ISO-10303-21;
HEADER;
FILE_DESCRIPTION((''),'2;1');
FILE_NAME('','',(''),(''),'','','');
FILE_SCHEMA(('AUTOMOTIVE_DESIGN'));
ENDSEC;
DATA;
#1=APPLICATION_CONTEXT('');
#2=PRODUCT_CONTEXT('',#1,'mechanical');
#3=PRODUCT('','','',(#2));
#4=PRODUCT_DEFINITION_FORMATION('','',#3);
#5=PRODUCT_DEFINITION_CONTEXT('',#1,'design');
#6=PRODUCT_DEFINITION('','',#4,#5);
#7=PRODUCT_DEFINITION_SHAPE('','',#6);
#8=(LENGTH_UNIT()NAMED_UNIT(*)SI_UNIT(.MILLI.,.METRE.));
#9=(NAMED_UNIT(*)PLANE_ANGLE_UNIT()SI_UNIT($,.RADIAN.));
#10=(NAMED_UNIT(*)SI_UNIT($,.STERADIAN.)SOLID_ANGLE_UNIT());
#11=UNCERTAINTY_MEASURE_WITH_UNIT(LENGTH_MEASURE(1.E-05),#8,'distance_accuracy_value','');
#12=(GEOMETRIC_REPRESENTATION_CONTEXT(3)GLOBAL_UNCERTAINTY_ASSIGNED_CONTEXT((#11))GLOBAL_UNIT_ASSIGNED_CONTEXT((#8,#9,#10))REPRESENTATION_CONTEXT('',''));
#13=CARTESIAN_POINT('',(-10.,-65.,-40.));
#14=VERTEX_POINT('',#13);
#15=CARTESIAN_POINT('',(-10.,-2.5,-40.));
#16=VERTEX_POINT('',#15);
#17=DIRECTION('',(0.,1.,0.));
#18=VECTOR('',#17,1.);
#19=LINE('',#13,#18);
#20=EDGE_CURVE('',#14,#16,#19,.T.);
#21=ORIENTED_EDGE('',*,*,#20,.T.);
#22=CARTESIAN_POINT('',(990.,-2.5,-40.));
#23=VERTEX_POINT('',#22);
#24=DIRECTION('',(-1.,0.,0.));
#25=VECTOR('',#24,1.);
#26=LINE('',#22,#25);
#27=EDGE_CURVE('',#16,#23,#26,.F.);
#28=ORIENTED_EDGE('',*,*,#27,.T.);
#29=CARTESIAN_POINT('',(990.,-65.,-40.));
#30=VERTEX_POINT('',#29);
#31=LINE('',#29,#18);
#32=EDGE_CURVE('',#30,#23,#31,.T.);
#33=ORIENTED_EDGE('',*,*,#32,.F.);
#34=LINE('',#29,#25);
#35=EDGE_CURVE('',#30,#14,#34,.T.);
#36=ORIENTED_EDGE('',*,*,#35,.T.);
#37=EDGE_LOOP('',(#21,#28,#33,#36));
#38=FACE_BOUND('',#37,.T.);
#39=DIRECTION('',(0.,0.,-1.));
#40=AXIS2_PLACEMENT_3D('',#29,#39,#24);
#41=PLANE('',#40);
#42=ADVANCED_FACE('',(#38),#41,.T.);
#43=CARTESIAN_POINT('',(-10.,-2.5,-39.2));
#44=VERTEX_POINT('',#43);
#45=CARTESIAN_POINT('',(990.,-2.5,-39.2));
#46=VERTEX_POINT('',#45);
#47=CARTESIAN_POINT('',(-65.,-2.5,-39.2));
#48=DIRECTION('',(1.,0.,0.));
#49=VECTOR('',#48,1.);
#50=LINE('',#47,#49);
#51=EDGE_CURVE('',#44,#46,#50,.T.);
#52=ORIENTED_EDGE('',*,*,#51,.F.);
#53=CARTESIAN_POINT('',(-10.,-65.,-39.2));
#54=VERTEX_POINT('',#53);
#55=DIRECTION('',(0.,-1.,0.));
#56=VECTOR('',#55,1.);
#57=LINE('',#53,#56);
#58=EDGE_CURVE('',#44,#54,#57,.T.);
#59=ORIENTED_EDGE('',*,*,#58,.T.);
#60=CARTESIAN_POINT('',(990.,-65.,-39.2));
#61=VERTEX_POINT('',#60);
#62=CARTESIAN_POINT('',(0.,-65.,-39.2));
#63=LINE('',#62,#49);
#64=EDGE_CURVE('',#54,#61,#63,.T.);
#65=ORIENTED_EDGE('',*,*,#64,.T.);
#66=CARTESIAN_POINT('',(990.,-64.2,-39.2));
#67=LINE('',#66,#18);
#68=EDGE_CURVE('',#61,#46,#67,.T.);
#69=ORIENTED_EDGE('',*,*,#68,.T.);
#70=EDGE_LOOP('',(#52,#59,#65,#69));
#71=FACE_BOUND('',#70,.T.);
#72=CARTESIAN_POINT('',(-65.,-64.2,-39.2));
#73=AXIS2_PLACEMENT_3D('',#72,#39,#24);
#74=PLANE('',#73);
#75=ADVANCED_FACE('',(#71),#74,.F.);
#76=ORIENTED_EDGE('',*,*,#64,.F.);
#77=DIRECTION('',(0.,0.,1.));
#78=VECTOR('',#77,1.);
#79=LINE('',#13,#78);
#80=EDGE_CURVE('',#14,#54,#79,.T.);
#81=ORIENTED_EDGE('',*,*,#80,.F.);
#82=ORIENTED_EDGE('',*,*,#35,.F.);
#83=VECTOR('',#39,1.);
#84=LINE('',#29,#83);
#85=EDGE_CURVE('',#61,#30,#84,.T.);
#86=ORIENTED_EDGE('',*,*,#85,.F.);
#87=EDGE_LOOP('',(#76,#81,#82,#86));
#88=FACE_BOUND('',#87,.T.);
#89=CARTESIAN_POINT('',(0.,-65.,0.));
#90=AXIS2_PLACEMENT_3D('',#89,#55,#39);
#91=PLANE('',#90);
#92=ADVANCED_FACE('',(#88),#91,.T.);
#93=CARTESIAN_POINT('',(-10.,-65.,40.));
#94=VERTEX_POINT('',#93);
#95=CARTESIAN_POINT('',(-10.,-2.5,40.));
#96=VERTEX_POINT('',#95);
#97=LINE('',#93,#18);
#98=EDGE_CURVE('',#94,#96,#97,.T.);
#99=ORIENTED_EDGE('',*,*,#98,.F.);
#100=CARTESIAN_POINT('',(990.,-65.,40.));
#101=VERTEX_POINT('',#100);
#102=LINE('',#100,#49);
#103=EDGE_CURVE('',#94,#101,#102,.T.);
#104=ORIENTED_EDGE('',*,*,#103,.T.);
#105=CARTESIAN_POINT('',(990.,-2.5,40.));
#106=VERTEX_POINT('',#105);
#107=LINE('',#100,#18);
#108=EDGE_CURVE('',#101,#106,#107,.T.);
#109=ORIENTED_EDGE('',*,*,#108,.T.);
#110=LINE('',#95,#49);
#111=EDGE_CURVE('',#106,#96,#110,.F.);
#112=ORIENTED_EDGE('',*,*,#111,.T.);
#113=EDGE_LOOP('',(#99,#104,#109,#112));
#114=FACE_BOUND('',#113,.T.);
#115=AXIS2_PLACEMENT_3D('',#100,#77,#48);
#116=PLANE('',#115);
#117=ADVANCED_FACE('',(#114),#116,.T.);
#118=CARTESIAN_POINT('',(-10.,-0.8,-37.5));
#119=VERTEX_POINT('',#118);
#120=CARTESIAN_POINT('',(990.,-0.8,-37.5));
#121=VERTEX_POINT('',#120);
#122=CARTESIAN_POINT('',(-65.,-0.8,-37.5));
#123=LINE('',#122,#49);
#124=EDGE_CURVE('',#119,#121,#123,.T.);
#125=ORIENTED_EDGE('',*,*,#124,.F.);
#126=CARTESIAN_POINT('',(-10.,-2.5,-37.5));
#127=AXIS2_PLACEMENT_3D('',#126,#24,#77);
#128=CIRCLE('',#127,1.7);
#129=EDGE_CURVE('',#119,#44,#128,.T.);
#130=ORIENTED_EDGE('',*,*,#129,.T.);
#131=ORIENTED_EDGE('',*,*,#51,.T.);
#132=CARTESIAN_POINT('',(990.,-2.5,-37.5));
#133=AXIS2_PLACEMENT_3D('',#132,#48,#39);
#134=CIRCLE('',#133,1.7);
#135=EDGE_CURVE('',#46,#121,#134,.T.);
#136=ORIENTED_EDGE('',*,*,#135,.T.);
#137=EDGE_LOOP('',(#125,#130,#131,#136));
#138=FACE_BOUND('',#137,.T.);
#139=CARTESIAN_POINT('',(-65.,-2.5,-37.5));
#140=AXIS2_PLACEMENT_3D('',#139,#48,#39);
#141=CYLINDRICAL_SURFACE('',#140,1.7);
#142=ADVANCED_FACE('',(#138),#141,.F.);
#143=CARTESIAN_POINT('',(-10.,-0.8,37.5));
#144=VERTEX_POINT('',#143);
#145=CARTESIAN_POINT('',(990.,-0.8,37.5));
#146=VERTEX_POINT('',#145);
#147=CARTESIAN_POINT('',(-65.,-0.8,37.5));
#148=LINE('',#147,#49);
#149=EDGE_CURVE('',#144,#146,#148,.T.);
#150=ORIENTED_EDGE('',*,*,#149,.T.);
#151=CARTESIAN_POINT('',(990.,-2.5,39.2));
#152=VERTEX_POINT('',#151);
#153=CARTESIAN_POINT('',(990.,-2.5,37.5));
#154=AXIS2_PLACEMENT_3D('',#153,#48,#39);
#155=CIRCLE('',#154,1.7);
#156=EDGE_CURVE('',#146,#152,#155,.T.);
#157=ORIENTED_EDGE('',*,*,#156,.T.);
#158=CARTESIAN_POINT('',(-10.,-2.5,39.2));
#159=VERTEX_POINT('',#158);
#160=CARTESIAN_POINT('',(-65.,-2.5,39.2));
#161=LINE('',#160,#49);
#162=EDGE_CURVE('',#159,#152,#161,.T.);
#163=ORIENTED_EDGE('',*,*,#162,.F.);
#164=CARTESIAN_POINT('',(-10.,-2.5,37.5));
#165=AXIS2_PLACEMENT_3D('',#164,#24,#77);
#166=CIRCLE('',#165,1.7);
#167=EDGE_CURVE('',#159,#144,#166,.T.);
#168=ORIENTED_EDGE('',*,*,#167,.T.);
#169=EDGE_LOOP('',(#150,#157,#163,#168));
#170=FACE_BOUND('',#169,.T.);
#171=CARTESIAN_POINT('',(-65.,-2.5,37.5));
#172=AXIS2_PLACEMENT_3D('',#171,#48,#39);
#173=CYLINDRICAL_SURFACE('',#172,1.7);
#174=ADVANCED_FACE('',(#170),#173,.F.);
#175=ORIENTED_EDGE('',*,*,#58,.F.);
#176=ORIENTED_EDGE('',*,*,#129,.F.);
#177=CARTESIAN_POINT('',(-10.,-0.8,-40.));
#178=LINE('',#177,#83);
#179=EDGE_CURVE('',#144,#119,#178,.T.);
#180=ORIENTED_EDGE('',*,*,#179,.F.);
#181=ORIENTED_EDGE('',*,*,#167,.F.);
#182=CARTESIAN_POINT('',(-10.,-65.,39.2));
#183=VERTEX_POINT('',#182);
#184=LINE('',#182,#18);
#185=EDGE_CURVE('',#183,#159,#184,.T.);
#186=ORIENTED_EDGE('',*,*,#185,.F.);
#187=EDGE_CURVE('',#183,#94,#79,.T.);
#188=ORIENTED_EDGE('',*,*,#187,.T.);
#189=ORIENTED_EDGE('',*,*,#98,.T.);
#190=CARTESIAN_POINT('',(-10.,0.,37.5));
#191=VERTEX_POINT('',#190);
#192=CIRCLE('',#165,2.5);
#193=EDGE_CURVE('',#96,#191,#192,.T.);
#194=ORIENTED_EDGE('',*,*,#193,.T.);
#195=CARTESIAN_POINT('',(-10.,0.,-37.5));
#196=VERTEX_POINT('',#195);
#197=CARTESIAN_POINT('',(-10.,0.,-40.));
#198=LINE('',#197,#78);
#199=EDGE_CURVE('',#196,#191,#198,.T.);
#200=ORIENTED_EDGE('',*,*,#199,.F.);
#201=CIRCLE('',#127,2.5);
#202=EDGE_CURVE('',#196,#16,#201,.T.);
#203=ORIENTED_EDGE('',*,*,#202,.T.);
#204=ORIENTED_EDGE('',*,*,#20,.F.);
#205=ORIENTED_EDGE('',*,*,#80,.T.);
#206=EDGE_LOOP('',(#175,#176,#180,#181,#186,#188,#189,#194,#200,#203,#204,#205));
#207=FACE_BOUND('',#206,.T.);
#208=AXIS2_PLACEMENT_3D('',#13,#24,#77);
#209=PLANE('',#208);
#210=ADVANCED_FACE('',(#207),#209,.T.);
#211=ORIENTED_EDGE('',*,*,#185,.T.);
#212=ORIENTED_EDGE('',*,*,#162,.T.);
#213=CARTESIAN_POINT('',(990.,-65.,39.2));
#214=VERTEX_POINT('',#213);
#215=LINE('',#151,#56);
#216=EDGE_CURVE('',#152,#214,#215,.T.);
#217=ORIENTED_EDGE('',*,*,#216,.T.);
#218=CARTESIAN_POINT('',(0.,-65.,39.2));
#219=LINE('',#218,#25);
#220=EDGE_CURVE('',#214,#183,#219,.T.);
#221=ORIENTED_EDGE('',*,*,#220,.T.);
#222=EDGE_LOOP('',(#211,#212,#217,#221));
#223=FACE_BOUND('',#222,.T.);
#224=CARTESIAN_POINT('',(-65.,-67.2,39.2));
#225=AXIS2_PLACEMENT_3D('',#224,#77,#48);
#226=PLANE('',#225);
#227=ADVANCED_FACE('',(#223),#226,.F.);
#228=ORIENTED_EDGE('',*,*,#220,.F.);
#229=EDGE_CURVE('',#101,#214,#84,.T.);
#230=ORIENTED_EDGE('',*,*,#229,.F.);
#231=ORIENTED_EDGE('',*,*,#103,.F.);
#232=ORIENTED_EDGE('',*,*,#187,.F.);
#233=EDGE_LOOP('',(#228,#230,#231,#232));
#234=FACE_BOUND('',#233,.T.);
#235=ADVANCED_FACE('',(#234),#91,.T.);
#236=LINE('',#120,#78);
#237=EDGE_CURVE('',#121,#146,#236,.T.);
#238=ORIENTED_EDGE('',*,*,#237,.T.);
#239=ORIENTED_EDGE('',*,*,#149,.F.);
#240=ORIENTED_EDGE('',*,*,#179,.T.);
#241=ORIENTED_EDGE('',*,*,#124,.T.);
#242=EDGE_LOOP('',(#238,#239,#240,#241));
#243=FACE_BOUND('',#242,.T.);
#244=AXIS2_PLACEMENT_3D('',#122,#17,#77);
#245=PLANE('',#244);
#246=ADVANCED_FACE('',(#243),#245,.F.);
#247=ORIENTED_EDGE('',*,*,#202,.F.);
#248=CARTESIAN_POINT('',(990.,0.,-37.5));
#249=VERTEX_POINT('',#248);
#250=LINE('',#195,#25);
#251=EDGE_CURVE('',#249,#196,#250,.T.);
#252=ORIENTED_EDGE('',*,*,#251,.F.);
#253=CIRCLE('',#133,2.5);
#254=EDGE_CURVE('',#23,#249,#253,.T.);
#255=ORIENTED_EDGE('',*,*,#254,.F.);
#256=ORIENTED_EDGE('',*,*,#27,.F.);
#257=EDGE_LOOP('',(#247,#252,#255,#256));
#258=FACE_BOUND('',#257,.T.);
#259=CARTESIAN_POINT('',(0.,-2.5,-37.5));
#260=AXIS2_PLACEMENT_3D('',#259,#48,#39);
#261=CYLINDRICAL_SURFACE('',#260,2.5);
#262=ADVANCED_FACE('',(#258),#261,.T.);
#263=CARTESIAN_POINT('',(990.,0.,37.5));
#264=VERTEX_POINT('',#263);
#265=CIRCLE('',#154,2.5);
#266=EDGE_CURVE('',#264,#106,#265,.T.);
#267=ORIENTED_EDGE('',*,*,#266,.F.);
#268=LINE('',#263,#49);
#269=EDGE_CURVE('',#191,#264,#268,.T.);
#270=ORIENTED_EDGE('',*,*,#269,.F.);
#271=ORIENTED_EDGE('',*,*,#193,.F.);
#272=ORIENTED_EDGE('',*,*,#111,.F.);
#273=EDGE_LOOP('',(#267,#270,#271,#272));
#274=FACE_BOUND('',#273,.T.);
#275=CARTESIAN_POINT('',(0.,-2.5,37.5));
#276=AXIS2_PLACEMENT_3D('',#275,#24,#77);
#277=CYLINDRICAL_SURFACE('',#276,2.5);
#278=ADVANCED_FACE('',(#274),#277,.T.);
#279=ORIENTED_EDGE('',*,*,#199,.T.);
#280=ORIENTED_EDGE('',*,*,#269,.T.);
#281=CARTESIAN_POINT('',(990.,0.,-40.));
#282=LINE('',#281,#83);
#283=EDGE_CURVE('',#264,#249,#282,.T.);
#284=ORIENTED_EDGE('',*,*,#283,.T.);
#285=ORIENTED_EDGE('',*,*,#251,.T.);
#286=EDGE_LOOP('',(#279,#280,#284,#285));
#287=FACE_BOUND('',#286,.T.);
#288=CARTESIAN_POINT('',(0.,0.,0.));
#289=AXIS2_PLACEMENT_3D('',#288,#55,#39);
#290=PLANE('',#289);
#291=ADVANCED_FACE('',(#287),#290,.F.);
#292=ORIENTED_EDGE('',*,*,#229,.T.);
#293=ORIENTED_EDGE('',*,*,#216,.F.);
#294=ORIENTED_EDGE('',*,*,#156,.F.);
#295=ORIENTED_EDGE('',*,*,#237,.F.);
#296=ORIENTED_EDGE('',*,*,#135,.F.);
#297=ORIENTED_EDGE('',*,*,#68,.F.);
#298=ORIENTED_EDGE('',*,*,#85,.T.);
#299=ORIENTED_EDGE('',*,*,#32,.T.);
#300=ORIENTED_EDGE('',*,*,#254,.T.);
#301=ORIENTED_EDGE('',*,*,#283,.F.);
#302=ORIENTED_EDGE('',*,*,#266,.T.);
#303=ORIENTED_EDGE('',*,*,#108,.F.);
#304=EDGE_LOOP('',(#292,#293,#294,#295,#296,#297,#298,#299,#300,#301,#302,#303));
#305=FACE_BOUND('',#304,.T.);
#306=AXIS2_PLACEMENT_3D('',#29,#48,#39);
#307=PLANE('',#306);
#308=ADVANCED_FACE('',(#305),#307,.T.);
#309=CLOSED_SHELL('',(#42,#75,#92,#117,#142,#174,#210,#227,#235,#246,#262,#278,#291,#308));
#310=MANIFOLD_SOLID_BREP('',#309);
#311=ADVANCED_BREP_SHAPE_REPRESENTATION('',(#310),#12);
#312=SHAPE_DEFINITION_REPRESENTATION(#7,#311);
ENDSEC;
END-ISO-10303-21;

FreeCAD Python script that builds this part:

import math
import FreeCAD as App
import Part
import Sketcher

V = App.Vector


def edges_at(feature, points):
    """Names of the edges that pass closest to the given points."""
    edges = feature.Shape.Edges
    near = lambda p: min(range(len(edges)), key=lambda i: edges[i].distToShape(Part.Vertex(*p))[0])
    return sorted({f"Edge{near(p) + 1}" for p in points})


def add_polygon(sketch, points):
    """Adds a closed chain of lines whose ends are joined by coincident constraints."""
    first, n = sketch.GeometryCount, len(points)
    for a, b in zip(points, points[1:] + points[:1]):
        sketch.addGeometry(Part.LineSegment(App.Vector(*a, 0), App.Vector(*b, 0)), False)
    for i in range(n):
        sketch.addConstraint(Sketcher.Constraint("Coincident", first + i, 2, first + (i + 1) % n, 1))

doc = App.newDocument("Part")
body = doc.addObject("PartDesign::Body", "Body")

# Sketch on XZ plane
sketch1 = body.newObject("Sketcher::SketchObject", "Sketch")
sketch1.AttachmentSupport = (doc.getObject("XZ_Plane"), [""])
sketch1.MapMode = "FlatFace"
add_polygon(sketch1, [(-10, -40), (-10, 40), (990, 40), (990, -40)])  # lines 0-3
sketch1.addConstraint(Sketcher.Constraint("Vertical", 0))
sketch1.addConstraint(Sketcher.Constraint("Horizontal", 1))
sketch1.addConstraint(Sketcher.Constraint("Vertical", 2))
sketch1.addConstraint(Sketcher.Constraint("Horizontal", 3))
sketch1.addConstraint(Sketcher.Constraint("DistanceX", 1, 1, 1, 2, 1000.0))
sketch1.addConstraint(Sketcher.Constraint("DistanceY", 0, 1, 0, 2, 80.0))
sketch1.addConstraint(Sketcher.Constraint("DistanceX", 0, 2, -1, 1, 10.0))
sketch1.addConstraint(Sketcher.Constraint("DistanceY", -1, 1, 0, 2, 40.0))
pad1 = body.newObject("PartDesign::Pad", "Pad")
pad1.Profile = sketch1
pad1.Length = 65
doc.recompute()

fillet = body.newObject("PartDesign::Fillet", "Fillet")
fillet.Base = (pad1, edges_at(pad1, [(490, 0, 40), (490, 0, -40)]))
fillet.Radius = 2.5

# Sketch on YZ plane
sketch2 = body.newObject("Sketcher::SketchObject", "Sketch001")
sketch2.AttachmentSupport = (doc.getObject("YZ_Plane"), [""])
sketch2.MapMode = "FlatFace"
sketch2.addGeometry(Part.LineSegment(V(-67.2, 39.2, 0), V(-67.2, -39.2, 0)), False)
sketch2.addGeometry(Part.LineSegment(V(-67.2, -39.2, 0), V(-2.5, -39.2, 0)), False)
sketch2.addGeometry(Part.ArcOfCircle(Part.Circle(V(-2.5, -37.5, 0), V(0, 0, 1), 1.7), math.radians(-90), math.radians(0)), False)
sketch2.addGeometry(Part.LineSegment(V(-0.8, -37.5, 0), V(-0.8, 37.5, 0)), False)
sketch2.addGeometry(Part.ArcOfCircle(Part.Circle(V(-2.5, 37.5, 0), V(0, 0, 1), 1.7), math.radians(0), math.radians(90)), False)
sketch2.addGeometry(Part.LineSegment(V(-2.5, 39.2, 0), V(-67.2, 39.2, 0)), False)
sketch2.addConstraint(Sketcher.Constraint("Coincident", 0, 2, 1, 1))
sketch2.addConstraint(Sketcher.Constraint("Tangent", 1, 2, 2, 1))
sketch2.addConstraint(Sketcher.Constraint("Tangent", 2, 2, 3, 1))
sketch2.addConstraint(Sketcher.Constraint("Tangent", 3, 2, 4, 1))
sketch2.addConstraint(Sketcher.Constraint("Tangent", 4, 2, 5, 1))
sketch2.addConstraint(Sketcher.Constraint("Coincident", 5, 2, 0, 1))
sketch2.addConstraint(Sketcher.Constraint("Vertical", 0))
sketch2.addConstraint(Sketcher.Constraint("Horizontal", 1))
sketch2.addConstraint(Sketcher.Constraint("Vertical", 3))
sketch2.addConstraint(Sketcher.Constraint("Horizontal", 5))
sketch2.addConstraint(Sketcher.Constraint("Equal", 2, 4))
sketch2.addConstraint(Sketcher.Constraint("Radius", 2, 1.7))
sketch2.addConstraint(Sketcher.Constraint("DistanceY", 3, 1, 3, 2, 75.0))
sketch2.addConstraint(Sketcher.Constraint("DistanceX", 1, 1, 1, 2, 64.7))
sketch2.addConstraint(Sketcher.Constraint("DistanceX", 2, 3, -1, 1, 2.5))
sketch2.addConstraint(Sketcher.Constraint("DistanceY", 2, 3, -1, 1, 37.5))
pocket1 = body.newObject("PartDesign::Pocket", "Pocket")
pocket1.Profile = sketch2
pocket1.Type = "ThroughAll"
pocket1.Midplane = True

doc.recompute()
